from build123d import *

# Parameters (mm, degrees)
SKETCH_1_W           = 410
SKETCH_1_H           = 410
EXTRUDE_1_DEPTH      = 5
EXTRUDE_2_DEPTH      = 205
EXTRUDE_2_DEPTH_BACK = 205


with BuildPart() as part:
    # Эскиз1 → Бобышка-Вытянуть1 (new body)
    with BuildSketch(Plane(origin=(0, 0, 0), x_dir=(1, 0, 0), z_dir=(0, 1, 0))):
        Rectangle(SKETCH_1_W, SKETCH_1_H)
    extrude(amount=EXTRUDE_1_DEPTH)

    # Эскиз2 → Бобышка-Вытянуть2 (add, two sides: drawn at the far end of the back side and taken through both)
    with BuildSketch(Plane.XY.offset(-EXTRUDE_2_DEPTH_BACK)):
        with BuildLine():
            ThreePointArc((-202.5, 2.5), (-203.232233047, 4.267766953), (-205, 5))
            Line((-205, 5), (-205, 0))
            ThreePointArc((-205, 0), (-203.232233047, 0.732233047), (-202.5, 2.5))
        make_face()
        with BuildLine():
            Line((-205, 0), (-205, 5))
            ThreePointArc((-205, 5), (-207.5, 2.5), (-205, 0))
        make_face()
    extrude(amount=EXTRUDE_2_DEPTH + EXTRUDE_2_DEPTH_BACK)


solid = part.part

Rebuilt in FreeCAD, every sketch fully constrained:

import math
import FreeCAD as App
import Part
import Sketcher
from FreeCAD import Vector


def add_polygon(sketch, points):
    """Adds a closed chain of lines whose ends are joined by coincident constraints."""
    first, n = sketch.GeometryCount, len(points)
    for a, b in zip(points, points[1:] + points[:1]):
        sketch.addGeometry(Part.LineSegment(App.Vector(*a, 0), App.Vector(*b, 0)), False)
    for i in range(n):
        sketch.addConstraint(Sketcher.Constraint("Coincident", first + i, 2, first + (i + 1) % n, 1))

doc = App.newDocument("Part")
body = doc.addObject("PartDesign::Body", "Body")

# Sketch on XZ plane
sketch1 = doc.addObject("Sketcher::SketchObject", "Sketch")
body.addObject(sketch1)
sketch1.AttachmentSupport = (doc.XZ_Plane, [""])
sketch1.MapMode = "FlatFace"
add_polygon(sketch1, [(-205, -205), (-205, 205), (205, 205), (205, -205)])  # lines 0-3
sketch1.addConstraint([
    Sketcher.Constraint("Vertical", 0),
    Sketcher.Constraint("Horizontal", 1),
    Sketcher.Constraint("Vertical", 2),
    Sketcher.Constraint("Horizontal", 3),
    Sketcher.Constraint("Symmetric", 0, 2, 2, 2, -1, 1),
    Sketcher.Constraint("Equal", 3, 0),
    Sketcher.Constraint("DistanceX", 1, 1, 1, 2, 410.0),
])
pad1 = doc.addObject("PartDesign::Pad", "Pad")
body.addObject(pad1)
pad1.Profile = sketch1
pad1.Length = 5
pad1.Reversed = True

# Sketch on XY plane
sketch2 = doc.addObject("Sketcher::SketchObject", "Sketch001")
body.addObject(sketch2)
sketch2.AttachmentSupport = (doc.XY_Plane, [""])
sketch2.MapMode = "FlatFace"
sketch2.addGeometry([
    Part.ArcOfCircle(Part.Circle(Vector(-205, 2.5, 0), Vector(0, 0, 1), 2.5), math.radians(0), math.radians(90)),
    Part.ArcOfCircle(Part.Circle(Vector(-205, 2.5, 0), Vector(0, 0, 1), 2.5), math.radians(90), math.radians(270)),
    Part.ArcOfCircle(Part.Circle(Vector(-205, 2.5, 0), Vector(0, 0, 1), 2.5), math.radians(-90), math.radians(0)),
], False)
sketch2.addConstraint([
    Sketcher.Constraint("Tangent", 0, 2, 1, 1),
    Sketcher.Constraint("Tangent", 1, 2, 2, 1),
    Sketcher.Constraint("Tangent", 2, 2, 0, 1),
    Sketcher.Constraint("PointOnObject", 1, 2, -1),
    Sketcher.Constraint("Horizontal", 1, 3, 2, 2),
    Sketcher.Constraint("Vertical", 2, 3, 0, 2),
    Sketcher.Constraint("Vertical", 0, 2, 1, 2),
    Sketcher.Constraint("Radius", 0, 2.5),
    Sketcher.Constraint("DistanceX", 0, 3, -1, 1, 205.0),
])
pad2 = doc.addObject("PartDesign::Pad", "Pad001")
body.addObject(pad2)
pad2.Profile = sketch2
pad2.Type = "TwoLengths"
pad2.Length = 205
pad2.Length2 = 205

doc.recompute()
